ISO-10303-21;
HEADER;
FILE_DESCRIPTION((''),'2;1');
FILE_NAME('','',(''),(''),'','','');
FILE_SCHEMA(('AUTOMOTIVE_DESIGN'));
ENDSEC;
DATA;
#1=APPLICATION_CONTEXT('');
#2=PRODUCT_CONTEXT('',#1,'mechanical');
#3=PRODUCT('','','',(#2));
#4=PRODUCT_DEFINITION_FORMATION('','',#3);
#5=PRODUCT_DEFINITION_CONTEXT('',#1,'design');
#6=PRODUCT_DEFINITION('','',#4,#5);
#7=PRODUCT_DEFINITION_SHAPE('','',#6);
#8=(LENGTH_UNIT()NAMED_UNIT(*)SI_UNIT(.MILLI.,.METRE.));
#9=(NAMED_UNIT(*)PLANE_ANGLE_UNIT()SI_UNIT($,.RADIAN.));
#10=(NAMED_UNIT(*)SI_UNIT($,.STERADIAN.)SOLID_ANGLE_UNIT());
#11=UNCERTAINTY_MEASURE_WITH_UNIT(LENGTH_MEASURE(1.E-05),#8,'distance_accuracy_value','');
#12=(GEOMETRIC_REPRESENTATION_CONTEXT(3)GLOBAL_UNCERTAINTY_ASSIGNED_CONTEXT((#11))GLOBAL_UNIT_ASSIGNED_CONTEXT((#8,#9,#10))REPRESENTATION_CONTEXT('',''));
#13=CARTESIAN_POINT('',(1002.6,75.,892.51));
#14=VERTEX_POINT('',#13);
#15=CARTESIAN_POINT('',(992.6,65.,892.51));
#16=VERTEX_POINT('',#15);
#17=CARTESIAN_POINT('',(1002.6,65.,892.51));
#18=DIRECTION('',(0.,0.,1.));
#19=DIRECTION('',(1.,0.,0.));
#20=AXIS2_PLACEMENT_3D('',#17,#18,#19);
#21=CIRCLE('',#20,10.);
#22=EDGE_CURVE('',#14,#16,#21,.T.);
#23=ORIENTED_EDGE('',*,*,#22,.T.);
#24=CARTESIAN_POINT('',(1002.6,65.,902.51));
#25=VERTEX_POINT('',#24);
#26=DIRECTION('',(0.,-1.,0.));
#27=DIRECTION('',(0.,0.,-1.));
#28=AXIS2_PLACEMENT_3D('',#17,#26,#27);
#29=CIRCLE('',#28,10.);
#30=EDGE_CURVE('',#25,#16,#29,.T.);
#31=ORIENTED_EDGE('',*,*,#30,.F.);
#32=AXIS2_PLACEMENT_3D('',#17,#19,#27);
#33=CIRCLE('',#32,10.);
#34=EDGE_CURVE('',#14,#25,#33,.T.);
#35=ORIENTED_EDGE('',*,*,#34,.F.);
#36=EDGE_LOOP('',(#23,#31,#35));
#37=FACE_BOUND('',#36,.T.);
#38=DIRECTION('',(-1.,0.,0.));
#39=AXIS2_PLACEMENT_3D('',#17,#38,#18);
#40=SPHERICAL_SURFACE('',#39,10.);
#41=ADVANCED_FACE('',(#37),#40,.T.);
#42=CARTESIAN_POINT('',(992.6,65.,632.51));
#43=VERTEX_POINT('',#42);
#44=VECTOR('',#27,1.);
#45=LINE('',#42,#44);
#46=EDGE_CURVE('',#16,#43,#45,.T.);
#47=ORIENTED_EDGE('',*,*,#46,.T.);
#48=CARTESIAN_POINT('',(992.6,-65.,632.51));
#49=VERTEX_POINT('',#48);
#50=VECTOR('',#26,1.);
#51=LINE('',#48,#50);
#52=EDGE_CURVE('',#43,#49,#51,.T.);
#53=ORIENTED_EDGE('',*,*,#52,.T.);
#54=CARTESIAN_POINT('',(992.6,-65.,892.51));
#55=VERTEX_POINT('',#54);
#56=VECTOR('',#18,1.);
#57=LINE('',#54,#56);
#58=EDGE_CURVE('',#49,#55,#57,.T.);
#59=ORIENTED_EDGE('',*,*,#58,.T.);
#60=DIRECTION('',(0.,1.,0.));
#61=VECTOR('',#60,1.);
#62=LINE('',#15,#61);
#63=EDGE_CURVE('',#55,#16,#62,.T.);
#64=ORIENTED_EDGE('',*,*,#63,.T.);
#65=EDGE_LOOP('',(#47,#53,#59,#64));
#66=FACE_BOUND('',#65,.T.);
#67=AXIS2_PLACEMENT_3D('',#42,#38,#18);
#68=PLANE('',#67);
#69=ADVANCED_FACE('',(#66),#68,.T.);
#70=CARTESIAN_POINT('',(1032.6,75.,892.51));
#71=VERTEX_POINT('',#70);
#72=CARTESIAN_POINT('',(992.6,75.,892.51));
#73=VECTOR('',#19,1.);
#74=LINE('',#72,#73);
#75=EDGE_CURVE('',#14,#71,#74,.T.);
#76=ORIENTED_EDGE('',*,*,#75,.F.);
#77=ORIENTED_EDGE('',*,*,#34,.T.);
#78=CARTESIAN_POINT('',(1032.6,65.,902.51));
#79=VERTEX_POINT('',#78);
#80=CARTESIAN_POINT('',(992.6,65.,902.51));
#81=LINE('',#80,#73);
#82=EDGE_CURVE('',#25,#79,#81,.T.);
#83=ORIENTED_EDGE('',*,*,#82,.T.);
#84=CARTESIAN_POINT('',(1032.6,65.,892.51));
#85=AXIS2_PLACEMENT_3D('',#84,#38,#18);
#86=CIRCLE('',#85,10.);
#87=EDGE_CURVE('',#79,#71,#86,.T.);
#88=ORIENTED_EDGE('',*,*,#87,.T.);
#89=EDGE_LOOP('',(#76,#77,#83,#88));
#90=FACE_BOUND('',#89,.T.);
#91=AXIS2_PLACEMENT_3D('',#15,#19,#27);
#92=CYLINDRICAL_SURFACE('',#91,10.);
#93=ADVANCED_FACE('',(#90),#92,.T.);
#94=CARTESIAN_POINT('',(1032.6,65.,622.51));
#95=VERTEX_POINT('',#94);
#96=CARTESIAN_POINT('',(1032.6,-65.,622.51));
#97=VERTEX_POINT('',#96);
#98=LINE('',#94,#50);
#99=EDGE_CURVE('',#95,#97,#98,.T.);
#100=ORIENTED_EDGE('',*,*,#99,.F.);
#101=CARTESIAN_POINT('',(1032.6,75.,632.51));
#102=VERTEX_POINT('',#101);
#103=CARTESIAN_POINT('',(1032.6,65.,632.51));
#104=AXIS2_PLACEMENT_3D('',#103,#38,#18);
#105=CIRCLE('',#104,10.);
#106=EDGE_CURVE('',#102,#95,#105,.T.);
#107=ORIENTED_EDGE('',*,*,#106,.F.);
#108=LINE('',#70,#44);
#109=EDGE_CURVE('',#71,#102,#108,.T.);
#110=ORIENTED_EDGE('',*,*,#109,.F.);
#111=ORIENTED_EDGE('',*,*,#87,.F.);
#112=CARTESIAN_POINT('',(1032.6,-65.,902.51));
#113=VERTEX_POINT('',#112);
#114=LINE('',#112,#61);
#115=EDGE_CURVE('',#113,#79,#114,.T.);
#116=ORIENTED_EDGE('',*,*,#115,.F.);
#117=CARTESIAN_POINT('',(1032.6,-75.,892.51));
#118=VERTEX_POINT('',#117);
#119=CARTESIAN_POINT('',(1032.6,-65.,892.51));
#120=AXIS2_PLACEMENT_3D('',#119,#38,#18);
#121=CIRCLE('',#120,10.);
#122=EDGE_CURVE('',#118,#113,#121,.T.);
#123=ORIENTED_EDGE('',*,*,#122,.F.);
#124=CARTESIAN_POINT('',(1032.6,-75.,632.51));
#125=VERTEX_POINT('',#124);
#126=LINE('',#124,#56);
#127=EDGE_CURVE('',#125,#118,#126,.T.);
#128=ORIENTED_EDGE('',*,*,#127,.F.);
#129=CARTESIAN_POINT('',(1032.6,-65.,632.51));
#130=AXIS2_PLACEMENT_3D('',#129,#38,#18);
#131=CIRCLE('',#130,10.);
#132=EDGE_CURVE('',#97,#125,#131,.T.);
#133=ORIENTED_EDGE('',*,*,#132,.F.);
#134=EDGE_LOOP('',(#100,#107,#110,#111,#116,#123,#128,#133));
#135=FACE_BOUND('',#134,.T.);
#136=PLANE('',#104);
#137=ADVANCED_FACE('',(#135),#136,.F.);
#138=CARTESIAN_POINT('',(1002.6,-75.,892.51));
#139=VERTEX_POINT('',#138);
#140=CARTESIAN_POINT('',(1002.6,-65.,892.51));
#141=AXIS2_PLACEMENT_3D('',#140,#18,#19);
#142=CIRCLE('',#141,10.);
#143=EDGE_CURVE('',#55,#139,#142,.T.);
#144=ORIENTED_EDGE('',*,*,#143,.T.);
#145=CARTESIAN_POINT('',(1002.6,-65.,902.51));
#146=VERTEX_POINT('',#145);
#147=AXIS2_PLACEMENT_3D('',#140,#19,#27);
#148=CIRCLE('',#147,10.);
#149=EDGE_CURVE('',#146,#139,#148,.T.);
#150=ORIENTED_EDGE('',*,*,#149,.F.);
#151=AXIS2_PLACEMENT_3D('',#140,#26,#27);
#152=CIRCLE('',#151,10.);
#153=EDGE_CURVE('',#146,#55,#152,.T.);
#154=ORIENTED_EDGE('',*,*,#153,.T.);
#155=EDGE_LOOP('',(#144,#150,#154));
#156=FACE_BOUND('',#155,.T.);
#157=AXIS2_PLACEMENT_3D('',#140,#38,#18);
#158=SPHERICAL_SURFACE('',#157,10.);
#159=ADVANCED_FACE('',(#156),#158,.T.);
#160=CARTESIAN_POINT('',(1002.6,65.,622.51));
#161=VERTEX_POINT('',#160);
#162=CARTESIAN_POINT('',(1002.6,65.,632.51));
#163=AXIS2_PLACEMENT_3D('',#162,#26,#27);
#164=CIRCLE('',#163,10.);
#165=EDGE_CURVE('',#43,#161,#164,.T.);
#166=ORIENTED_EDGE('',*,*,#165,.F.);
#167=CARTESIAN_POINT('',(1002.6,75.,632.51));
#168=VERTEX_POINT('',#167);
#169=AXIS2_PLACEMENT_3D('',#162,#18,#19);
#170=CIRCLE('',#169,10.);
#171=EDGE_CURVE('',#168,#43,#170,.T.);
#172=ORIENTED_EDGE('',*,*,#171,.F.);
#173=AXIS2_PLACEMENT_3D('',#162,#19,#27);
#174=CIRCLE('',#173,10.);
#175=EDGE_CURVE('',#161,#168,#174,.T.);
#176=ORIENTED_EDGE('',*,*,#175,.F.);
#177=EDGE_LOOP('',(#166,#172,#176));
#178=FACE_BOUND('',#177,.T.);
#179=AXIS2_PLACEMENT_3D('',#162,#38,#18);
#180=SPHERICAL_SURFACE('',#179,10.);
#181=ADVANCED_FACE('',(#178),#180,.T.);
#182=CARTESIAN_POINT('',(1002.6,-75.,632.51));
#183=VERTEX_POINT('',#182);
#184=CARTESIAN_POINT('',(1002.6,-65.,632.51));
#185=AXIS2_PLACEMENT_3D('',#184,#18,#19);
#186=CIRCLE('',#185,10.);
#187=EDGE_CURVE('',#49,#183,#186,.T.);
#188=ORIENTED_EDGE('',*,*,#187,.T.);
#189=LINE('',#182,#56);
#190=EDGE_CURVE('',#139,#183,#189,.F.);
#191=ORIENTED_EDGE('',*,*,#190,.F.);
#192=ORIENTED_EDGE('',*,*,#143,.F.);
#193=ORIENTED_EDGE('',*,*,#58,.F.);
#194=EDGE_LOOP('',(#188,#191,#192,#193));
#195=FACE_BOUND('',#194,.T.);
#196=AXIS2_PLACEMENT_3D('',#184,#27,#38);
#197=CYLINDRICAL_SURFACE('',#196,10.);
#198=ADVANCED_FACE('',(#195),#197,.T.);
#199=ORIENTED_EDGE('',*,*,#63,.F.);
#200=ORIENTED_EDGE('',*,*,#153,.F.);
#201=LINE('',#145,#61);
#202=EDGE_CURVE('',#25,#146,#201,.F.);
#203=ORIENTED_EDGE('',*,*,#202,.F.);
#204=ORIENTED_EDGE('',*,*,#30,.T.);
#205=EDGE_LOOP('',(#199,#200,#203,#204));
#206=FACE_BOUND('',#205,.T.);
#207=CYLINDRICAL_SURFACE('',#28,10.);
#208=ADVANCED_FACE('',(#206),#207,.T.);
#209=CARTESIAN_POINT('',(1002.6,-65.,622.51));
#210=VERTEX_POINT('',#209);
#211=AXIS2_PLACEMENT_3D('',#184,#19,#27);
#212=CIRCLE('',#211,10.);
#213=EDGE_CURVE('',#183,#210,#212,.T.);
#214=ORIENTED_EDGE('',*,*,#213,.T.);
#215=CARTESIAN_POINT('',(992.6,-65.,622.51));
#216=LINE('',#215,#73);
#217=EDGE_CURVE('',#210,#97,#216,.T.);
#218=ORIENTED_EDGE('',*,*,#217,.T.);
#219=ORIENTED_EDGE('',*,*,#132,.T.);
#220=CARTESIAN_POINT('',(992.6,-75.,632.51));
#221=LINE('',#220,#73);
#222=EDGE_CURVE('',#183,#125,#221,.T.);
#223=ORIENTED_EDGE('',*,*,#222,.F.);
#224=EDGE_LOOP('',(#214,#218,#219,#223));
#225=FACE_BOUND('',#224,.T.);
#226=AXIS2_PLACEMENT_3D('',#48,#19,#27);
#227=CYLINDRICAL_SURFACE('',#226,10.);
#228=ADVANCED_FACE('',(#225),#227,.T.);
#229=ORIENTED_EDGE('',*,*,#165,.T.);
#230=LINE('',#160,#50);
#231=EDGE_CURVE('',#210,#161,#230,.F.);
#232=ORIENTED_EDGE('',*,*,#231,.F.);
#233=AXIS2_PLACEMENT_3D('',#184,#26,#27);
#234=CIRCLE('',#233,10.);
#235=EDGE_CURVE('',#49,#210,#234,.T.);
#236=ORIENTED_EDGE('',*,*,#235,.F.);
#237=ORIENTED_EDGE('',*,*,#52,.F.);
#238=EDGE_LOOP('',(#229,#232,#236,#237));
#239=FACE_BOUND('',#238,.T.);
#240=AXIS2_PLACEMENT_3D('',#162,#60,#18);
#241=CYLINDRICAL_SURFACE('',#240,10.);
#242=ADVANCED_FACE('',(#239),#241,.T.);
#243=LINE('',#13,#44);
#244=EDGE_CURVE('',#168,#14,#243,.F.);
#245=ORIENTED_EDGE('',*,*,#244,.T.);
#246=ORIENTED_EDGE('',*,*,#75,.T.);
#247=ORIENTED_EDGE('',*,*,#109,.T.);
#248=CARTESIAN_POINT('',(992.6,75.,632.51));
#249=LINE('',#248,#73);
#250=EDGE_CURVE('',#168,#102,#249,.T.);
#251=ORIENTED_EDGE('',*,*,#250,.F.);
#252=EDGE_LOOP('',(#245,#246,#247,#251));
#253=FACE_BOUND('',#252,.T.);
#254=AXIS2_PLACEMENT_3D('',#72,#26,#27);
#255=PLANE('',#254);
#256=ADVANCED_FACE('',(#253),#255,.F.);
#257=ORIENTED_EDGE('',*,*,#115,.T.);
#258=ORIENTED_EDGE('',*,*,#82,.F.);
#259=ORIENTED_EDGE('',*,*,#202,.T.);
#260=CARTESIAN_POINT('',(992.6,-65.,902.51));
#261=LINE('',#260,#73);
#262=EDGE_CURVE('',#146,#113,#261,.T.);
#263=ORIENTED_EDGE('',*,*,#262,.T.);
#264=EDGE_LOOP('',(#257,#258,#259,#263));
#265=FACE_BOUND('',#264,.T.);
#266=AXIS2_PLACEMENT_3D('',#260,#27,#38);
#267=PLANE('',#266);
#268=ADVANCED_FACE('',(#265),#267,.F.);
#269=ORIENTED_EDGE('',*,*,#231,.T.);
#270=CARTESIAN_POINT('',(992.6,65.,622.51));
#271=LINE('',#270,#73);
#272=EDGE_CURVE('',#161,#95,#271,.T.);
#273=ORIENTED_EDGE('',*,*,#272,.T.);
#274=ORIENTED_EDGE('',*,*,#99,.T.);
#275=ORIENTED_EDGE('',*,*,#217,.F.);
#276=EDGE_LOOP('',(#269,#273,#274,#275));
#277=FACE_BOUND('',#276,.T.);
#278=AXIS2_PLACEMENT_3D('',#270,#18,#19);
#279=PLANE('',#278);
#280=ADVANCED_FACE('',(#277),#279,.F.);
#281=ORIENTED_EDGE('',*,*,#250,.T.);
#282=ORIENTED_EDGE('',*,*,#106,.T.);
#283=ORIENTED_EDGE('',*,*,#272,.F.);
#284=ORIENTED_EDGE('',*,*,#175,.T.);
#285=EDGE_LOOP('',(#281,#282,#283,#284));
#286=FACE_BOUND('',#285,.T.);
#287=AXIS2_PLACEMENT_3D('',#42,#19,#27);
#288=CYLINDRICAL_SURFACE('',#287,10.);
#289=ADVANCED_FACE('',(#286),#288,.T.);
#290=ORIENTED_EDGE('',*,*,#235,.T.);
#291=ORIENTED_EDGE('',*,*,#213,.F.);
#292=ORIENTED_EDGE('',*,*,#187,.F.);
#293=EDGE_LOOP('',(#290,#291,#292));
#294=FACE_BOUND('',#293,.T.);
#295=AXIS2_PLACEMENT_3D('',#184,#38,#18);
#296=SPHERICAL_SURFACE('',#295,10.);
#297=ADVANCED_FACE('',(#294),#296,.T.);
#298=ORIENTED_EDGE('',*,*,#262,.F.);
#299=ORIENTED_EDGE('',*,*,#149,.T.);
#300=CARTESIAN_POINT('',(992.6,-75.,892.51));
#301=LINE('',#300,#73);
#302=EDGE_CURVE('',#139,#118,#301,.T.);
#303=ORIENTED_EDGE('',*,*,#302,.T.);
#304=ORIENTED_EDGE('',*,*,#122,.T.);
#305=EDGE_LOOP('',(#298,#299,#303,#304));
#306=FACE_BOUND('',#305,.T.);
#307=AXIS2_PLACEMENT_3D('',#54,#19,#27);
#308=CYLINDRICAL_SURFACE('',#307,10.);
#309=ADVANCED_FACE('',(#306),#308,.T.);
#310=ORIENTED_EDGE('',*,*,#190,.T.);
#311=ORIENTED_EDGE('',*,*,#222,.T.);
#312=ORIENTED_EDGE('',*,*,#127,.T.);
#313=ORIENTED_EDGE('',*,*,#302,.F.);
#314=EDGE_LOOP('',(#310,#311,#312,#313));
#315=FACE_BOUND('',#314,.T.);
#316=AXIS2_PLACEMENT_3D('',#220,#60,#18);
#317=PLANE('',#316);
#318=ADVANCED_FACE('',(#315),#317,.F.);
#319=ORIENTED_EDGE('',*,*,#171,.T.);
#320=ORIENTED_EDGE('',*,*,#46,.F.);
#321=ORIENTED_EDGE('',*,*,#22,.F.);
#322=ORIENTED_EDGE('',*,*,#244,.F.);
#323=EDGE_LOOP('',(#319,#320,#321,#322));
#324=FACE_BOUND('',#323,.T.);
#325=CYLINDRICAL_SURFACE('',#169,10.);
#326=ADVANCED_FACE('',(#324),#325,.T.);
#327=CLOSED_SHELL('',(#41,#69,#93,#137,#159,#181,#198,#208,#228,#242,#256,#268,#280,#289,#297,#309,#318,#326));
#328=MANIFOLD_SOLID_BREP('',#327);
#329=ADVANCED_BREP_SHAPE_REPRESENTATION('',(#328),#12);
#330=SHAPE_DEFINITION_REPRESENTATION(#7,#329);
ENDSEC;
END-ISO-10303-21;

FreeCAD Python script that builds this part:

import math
import FreeCAD as App
import Part
import Sketcher

V = App.Vector


def edges_at(feature, points):
    """Names of the edges that pass closest to the given points."""
    edges = feature.Shape.Edges
    near = lambda p: min(range(len(edges)), key=lambda i: edges[i].distToShape(Part.Vertex(*p))[0])
    return sorted({f"Edge{near(p) + 1}" for p in points})

doc = App.newDocument("Part")
body = doc.addObject("PartDesign::Body", "Body")

# Sketch on YZ plane
sketch1 = doc.addObject("Sketcher::SketchObject", "Sketch")
body.addObject(sketch1)
sketch1.AttachmentSupport = (doc.YZ_Plane, [""])
sketch1.MapMode = "FlatFace"
sketch1.AttachmentOffset = App.Placement(V(0, 0, 1032.6), App.Rotation())
sketch1.addGeometry(Part.LineSegment(V(65, 623, 0), V(-65, 623, 0)), False)
sketch1.addGeometry(Part.ArcOfCircle(Part.Circle(V(-65, 633, 0), V(0, 0, 1), 10), math.radians(180), math.radians(270)), False)
sketch1.addGeometry(Part.LineSegment(V(-75, 633, 0), V(-75, 893, 0)), False)
sketch1.addGeometry(Part.ArcOfCircle(Part.Circle(V(-65, 893, 0), V(0, 0, 1), 10), math.radians(90), math.radians(180)), False)
sketch1.addGeometry(Part.LineSegment(V(-65, 903, 0), V(65, 903, 0)), False)
sketch1.addGeometry(Part.ArcOfCircle(Part.Circle(V(65, 893, 0), V(0, 0, 1), 10), math.radians(0), math.radians(90)), False)
sketch1.addGeometry(Part.LineSegment(V(75, 893, 0), V(75, 633, 0)), False)
sketch1.addGeometry(Part.ArcOfCircle(Part.Circle(V(65, 633, 0), V(0, 0, 1), 10), math.radians(-90), math.radians(0)), False)
sketch1.addConstraint(Sketcher.Constraint("Tangent", 0, 2, 1, 2))
sketch1.addConstraint(Sketcher.Constraint("Tangent", 1, 1, 2, 1))
sketch1.addConstraint(Sketcher.Constraint("Tangent", 2, 2, 3, 2))
sketch1.addConstraint(Sketcher.Constraint("Tangent", 3, 1, 4, 1))
sketch1.addConstraint(Sketcher.Constraint("Tangent", 4, 2, 5, 2))
sketch1.addConstraint(Sketcher.Constraint("Tangent", 5, 1, 6, 1))
sketch1.addConstraint(Sketcher.Constraint("Tangent", 6, 2, 7, 2))
sketch1.addConstraint(Sketcher.Constraint("Tangent", 7, 1, 0, 1))
sketch1.addConstraint(Sketcher.Constraint("Horizontal", 0))
sketch1.addConstraint(Sketcher.Constraint("Vertical", 2))
sketch1.addConstraint(Sketcher.Constraint("Horizontal", 4))
sketch1.addConstraint(Sketcher.Constraint("Vertical", 6))
sketch1.addConstraint(Sketcher.Constraint("Equal", 1, 3))
sketch1.addConstraint(Sketcher.Constraint("Equal", 3, 5))
sketch1.addConstraint(Sketcher.Constraint("Equal", 5, 7))
sketch1.addConstraint(Sketcher.Constraint("Radius", 1, 10.0))
sketch1.addConstraint(Sketcher.Constraint("DistanceX", 0, 2, 0, 1, 130.0))
sketch1.addConstraint(Sketcher.Constraint("DistanceY", 2, 1, 2, 2, 260.0))
sketch1.addConstraint(Sketcher.Constraint("DistanceX", 1, 3, -1, 1, 65.0))
sketch1.addConstraint(Sketcher.Constraint("DistanceY", -1, 1, 1, 3, 632.51))
pad1 = doc.addObject("PartDesign::Pad", "Pad")
body.addObject(pad1)
pad1.Profile = sketch1
pad1.Length = 40
pad1.Reversed = True
doc.recompute()

fillet = doc.addObject("PartDesign::Fillet", "Fillet")
body.addObject(fillet)
fillet.Base = (pad1, edges_at(pad1, [
    (992.6, -72.071, 625.439),
    (992.6, -75, 762.51),
    (992.6, -72.071, 899.581),
    (992.6, 0, 902.51),
    (992.6, 72.071, 899.581),
    (992.6, 75, 762.51),
    (992.6, 72.071, 625.439),
    (992.6, 0, 622.51),
]))
fillet.Radius = 10

doc.recompute()
